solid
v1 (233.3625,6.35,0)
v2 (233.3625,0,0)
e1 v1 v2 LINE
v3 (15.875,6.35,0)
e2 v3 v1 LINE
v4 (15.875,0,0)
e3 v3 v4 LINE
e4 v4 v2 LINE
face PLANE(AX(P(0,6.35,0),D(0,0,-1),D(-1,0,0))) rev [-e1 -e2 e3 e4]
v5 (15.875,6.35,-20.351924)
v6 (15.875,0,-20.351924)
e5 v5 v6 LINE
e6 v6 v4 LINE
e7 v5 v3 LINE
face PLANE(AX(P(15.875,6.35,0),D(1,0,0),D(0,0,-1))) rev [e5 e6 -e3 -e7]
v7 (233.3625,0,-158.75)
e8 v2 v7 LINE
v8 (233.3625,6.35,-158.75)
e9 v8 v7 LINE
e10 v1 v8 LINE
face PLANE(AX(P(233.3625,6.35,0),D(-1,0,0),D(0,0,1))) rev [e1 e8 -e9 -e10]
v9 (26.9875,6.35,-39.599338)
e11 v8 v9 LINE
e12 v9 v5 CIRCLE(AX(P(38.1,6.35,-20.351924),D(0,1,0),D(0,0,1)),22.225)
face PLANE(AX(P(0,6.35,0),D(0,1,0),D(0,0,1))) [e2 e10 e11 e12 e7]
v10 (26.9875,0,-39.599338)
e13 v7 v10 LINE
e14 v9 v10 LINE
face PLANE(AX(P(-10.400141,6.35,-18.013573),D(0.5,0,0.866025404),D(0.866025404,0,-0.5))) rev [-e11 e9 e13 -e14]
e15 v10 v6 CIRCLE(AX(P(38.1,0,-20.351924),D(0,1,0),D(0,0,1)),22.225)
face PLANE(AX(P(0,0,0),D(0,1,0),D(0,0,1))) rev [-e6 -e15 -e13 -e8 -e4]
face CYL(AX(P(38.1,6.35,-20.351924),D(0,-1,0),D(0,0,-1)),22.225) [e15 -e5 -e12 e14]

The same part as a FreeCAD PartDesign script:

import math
import FreeCAD as App
import Part
import Sketcher

V = App.Vector
Q = App.Units.Quantity

doc = App.newDocument("Part")
body = doc.addObject("PartDesign::Body", "Body")

# Sketch on XZ plane
sketch1 = body.newObject("Sketcher::SketchObject", "Sketch")
sketch1.AttachmentSupport = (doc.getObject("XZ_Plane"), [""])
sketch1.MapMode = "FlatFace"
sketch1.addGeometry(Part.ArcOfCircle(Part.Circle(V(-38.1, -20.351924, 0), V(0, 0, 1), 22.225), math.radians(-60), math.radians(0)), False)
sketch1.addGeometry(Part.LineSegment(V(-26.9875, -39.599338, 0), V(-233.3625, -158.75, 0)), False)
sketch1.addGeometry(Part.LineSegment(V(-233.3625, -158.75, 0), V(-233.3625, 0, 0)), False)
sketch1.addGeometry(Part.LineSegment(V(-233.3625, 0, 0), V(-15.875, 0, 0)), False)
sketch1.addGeometry(Part.LineSegment(V(-15.875, 0, 0), V(-15.875, -20.351924, 0)), False)
sketch1.addConstraint(Sketcher.Constraint("Tangent", 0, 1, 1, 1))
sketch1.addConstraint(Sketcher.Constraint("Coincident", 1, 2, 2, 1))
sketch1.addConstraint(Sketcher.Constraint("Coincident", 2, 2, 3, 1))
sketch1.addConstraint(Sketcher.Constraint("Coincident", 3, 2, 4, 1))
sketch1.addConstraint(Sketcher.Constraint("Tangent", 4, 2, 0, 2))
sketch1.addConstraint(Sketcher.Constraint("Vertical", 2))
sketch1.addConstraint(Sketcher.Constraint("Horizontal", 3))
sketch1.addConstraint(Sketcher.Constraint("Vertical", 4))
sketch1.addConstraint(Sketcher.Constraint("PointOnObject", 2, 2, -1))
sketch1.addConstraint(Sketcher.Constraint("Angle", 1, Q("-150 deg")))
sketch1.addConstraint(Sketcher.Constraint("Radius", 0, Q("0.875 in")))
sketch1.addConstraint(Sketcher.Constraint("DistanceY", 2, 1, 2, 2, Q("6.25 in")))
sketch1.addConstraint(Sketcher.Constraint("DistanceX", 0, 3, -1, 1, Q("1.5 in")))
sketch1.addConstraint(Sketcher.Constraint("DistanceX", 3, 1, 3, 2, Q("8.5625 in")))
pad1 = body.newObject("PartDesign::Pad", "Pad")
pad1.Profile = sketch1
pad1.Length = Q("0.25 in")
pad1.Reversed = True
body2 = doc.addObject("PartDesign::Body", "Body001")

# Sketch on XZ plane
sketch2 = body2.newObject("Sketcher::SketchObject", "Sketch001")
sketch2.AttachmentSupport = (doc.getObject("XZ_Plane001"), [""])
sketch2.MapMode = "FlatFace"
sketch2.addGeometry(Part.LineSegment(V(233.3625, -158.75, 0), V(26.9875, -39.599338, 0)), False)
sketch2.addGeometry(Part.ArcOfCircle(Part.Circle(V(38.1, -20.351924, 0), V(0, 0, 1), 22.225), math.radians(180), math.radians(240)), False)
sketch2.addGeometry(Part.LineSegment(V(15.875, -20.351924, 0), V(15.875, 0, 0)), False)
sketch2.addGeometry(Part.LineSegment(V(15.875, 0, 0), V(233.3625, 0, 0)), False)
sketch2.addGeometry(Part.LineSegment(V(233.3625, 0, 0), V(233.3625, -158.75, 0)), False)
sketch2.addConstraint(Sketcher.Constraint("Tangent", 0, 2, 1, 2))
sketch2.addConstraint(Sketcher.Constraint("Tangent", 1, 1, 2, 1))
sketch2.addConstraint(Sketcher.Constraint("Coincident", 2, 2, 3, 1))
sketch2.addConstraint(Sketcher.Constraint("Coincident", 3, 2, 4, 1))
sketch2.addConstraint(Sketcher.Constraint("Coincident", 4, 2, 0, 1))
sketch2.addConstraint(Sketcher.Constraint("Vertical", 2))
sketch2.addConstraint(Sketcher.Constraint("Horizontal", 3))
sketch2.addConstraint(Sketcher.Constraint("Vertical", 4))
sketch2.addConstraint(Sketcher.Constraint("PointOnObject", 2, 2, -1))
sketch2.addConstraint(Sketcher.Constraint("Angle", 0, Q("150 deg")))
sketch2.addConstraint(Sketcher.Constraint("Radius", 1, Q("0.875 in")))
sketch2.addConstraint(Sketcher.Constraint("DistanceY", 4, 2, 4, 1, Q("6.25 in")))
sketch2.addConstraint(Sketcher.Constraint("DistanceX", -1, 1, 1, 3, Q("1.5 in")))
sketch2.addConstraint(Sketcher.Constraint("DistanceX", 3, 1, 3, 2, Q("8.5625 in")))
pad2 = body2.newObject("PartDesign::Pad", "Pad001")
pad2.Profile = sketch2
pad2.Length = Q("0.25 in")
pad2.Reversed = True
body.Visibility = False

doc.recompute()
